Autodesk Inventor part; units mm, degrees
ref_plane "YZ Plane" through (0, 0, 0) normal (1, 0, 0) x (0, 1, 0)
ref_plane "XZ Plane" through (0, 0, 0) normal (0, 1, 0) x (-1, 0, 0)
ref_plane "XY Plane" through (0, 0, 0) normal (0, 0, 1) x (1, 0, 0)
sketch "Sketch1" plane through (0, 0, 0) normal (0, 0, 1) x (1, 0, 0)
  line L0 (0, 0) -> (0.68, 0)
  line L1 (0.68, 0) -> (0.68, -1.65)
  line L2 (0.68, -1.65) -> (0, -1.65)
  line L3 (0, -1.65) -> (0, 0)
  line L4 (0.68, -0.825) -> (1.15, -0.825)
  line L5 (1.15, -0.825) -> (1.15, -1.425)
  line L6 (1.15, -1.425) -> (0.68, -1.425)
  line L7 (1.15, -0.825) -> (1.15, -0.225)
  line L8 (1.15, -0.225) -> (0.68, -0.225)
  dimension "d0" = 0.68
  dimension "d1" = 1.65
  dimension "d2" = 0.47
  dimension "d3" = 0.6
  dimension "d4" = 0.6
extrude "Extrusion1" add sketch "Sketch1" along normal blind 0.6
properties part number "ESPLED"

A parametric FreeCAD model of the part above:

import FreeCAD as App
import Part
import Sketcher
Q = App.Units.Quantity


def add_polygon(sketch, points):
    """Adds a closed chain of lines whose ends are joined by coincident constraints."""
    first, n = sketch.GeometryCount, len(points)
    for a, b in zip(points, points[1:] + points[:1]):
        sketch.addGeometry(Part.LineSegment(App.Vector(*a, 0), App.Vector(*b, 0)), False)
    for i in range(n):
        sketch.addConstraint(Sketcher.Constraint("Coincident", first + i, 2, first + (i + 1) % n, 1))

doc = App.newDocument("Part")
body = doc.addObject("PartDesign::Body", "Body")

sketch1 = body.newObject("Sketcher::SketchObject", "Sketch")
sketch1.AttachmentSupport = (doc.getObject("XY_Plane"), [""])
sketch1.MapMode = "FlatFace"
add_polygon(sketch1, [(0.68, 0), (0, 0), (0, -1.65), (0.68, -1.65), (0.68, -1.43), (1.15, -1.43), (1.15, -0.23), (0.68, -0.23)])
sketch1.addConstraint(Sketcher.Constraint("Horizontal", 0))
sketch1.addConstraint(Sketcher.Constraint("Vertical", 1))
sketch1.addConstraint(Sketcher.Constraint("Horizontal", 2))
sketch1.addConstraint(Sketcher.Constraint("Vertical", 3))
sketch1.addConstraint(Sketcher.Constraint("Horizontal", 4))
sketch1.addConstraint(Sketcher.Constraint("Vertical", 5))
sketch1.addConstraint(Sketcher.Constraint("Horizontal", 6))
sketch1.addConstraint(Sketcher.Constraint("Vertical", 7))
sketch1.addConstraint(Sketcher.Constraint("Coincident", 0, 2, -1, 1))
sketch1.addConstraint(Sketcher.Constraint("Vertical", 3, 2, 6, 2))
sketch1.addConstraint(Sketcher.Constraint("Equal", 3, 7))
sketch1.addConstraint(Sketcher.Constraint("DistanceX", 0, 2, 0, 1, Q("0.68 mm")))
sketch1.addConstraint(Sketcher.Constraint("DistanceX", 4, 1, 4, 2, Q("0.47 mm")))
sketch1.addConstraint(Sketcher.Constraint("DistanceY", 1, 2, 1, 1, Q("1.65 mm")))
sketch1.addConstraint(Sketcher.Constraint("DistanceY", 5, 1, 5, 2, Q("1.2 mm")))
pad1 = body.newObject("PartDesign::Pad", "Pad")
pad1.Profile = sketch1
pad1.Length = 0.6

doc.recompute()
